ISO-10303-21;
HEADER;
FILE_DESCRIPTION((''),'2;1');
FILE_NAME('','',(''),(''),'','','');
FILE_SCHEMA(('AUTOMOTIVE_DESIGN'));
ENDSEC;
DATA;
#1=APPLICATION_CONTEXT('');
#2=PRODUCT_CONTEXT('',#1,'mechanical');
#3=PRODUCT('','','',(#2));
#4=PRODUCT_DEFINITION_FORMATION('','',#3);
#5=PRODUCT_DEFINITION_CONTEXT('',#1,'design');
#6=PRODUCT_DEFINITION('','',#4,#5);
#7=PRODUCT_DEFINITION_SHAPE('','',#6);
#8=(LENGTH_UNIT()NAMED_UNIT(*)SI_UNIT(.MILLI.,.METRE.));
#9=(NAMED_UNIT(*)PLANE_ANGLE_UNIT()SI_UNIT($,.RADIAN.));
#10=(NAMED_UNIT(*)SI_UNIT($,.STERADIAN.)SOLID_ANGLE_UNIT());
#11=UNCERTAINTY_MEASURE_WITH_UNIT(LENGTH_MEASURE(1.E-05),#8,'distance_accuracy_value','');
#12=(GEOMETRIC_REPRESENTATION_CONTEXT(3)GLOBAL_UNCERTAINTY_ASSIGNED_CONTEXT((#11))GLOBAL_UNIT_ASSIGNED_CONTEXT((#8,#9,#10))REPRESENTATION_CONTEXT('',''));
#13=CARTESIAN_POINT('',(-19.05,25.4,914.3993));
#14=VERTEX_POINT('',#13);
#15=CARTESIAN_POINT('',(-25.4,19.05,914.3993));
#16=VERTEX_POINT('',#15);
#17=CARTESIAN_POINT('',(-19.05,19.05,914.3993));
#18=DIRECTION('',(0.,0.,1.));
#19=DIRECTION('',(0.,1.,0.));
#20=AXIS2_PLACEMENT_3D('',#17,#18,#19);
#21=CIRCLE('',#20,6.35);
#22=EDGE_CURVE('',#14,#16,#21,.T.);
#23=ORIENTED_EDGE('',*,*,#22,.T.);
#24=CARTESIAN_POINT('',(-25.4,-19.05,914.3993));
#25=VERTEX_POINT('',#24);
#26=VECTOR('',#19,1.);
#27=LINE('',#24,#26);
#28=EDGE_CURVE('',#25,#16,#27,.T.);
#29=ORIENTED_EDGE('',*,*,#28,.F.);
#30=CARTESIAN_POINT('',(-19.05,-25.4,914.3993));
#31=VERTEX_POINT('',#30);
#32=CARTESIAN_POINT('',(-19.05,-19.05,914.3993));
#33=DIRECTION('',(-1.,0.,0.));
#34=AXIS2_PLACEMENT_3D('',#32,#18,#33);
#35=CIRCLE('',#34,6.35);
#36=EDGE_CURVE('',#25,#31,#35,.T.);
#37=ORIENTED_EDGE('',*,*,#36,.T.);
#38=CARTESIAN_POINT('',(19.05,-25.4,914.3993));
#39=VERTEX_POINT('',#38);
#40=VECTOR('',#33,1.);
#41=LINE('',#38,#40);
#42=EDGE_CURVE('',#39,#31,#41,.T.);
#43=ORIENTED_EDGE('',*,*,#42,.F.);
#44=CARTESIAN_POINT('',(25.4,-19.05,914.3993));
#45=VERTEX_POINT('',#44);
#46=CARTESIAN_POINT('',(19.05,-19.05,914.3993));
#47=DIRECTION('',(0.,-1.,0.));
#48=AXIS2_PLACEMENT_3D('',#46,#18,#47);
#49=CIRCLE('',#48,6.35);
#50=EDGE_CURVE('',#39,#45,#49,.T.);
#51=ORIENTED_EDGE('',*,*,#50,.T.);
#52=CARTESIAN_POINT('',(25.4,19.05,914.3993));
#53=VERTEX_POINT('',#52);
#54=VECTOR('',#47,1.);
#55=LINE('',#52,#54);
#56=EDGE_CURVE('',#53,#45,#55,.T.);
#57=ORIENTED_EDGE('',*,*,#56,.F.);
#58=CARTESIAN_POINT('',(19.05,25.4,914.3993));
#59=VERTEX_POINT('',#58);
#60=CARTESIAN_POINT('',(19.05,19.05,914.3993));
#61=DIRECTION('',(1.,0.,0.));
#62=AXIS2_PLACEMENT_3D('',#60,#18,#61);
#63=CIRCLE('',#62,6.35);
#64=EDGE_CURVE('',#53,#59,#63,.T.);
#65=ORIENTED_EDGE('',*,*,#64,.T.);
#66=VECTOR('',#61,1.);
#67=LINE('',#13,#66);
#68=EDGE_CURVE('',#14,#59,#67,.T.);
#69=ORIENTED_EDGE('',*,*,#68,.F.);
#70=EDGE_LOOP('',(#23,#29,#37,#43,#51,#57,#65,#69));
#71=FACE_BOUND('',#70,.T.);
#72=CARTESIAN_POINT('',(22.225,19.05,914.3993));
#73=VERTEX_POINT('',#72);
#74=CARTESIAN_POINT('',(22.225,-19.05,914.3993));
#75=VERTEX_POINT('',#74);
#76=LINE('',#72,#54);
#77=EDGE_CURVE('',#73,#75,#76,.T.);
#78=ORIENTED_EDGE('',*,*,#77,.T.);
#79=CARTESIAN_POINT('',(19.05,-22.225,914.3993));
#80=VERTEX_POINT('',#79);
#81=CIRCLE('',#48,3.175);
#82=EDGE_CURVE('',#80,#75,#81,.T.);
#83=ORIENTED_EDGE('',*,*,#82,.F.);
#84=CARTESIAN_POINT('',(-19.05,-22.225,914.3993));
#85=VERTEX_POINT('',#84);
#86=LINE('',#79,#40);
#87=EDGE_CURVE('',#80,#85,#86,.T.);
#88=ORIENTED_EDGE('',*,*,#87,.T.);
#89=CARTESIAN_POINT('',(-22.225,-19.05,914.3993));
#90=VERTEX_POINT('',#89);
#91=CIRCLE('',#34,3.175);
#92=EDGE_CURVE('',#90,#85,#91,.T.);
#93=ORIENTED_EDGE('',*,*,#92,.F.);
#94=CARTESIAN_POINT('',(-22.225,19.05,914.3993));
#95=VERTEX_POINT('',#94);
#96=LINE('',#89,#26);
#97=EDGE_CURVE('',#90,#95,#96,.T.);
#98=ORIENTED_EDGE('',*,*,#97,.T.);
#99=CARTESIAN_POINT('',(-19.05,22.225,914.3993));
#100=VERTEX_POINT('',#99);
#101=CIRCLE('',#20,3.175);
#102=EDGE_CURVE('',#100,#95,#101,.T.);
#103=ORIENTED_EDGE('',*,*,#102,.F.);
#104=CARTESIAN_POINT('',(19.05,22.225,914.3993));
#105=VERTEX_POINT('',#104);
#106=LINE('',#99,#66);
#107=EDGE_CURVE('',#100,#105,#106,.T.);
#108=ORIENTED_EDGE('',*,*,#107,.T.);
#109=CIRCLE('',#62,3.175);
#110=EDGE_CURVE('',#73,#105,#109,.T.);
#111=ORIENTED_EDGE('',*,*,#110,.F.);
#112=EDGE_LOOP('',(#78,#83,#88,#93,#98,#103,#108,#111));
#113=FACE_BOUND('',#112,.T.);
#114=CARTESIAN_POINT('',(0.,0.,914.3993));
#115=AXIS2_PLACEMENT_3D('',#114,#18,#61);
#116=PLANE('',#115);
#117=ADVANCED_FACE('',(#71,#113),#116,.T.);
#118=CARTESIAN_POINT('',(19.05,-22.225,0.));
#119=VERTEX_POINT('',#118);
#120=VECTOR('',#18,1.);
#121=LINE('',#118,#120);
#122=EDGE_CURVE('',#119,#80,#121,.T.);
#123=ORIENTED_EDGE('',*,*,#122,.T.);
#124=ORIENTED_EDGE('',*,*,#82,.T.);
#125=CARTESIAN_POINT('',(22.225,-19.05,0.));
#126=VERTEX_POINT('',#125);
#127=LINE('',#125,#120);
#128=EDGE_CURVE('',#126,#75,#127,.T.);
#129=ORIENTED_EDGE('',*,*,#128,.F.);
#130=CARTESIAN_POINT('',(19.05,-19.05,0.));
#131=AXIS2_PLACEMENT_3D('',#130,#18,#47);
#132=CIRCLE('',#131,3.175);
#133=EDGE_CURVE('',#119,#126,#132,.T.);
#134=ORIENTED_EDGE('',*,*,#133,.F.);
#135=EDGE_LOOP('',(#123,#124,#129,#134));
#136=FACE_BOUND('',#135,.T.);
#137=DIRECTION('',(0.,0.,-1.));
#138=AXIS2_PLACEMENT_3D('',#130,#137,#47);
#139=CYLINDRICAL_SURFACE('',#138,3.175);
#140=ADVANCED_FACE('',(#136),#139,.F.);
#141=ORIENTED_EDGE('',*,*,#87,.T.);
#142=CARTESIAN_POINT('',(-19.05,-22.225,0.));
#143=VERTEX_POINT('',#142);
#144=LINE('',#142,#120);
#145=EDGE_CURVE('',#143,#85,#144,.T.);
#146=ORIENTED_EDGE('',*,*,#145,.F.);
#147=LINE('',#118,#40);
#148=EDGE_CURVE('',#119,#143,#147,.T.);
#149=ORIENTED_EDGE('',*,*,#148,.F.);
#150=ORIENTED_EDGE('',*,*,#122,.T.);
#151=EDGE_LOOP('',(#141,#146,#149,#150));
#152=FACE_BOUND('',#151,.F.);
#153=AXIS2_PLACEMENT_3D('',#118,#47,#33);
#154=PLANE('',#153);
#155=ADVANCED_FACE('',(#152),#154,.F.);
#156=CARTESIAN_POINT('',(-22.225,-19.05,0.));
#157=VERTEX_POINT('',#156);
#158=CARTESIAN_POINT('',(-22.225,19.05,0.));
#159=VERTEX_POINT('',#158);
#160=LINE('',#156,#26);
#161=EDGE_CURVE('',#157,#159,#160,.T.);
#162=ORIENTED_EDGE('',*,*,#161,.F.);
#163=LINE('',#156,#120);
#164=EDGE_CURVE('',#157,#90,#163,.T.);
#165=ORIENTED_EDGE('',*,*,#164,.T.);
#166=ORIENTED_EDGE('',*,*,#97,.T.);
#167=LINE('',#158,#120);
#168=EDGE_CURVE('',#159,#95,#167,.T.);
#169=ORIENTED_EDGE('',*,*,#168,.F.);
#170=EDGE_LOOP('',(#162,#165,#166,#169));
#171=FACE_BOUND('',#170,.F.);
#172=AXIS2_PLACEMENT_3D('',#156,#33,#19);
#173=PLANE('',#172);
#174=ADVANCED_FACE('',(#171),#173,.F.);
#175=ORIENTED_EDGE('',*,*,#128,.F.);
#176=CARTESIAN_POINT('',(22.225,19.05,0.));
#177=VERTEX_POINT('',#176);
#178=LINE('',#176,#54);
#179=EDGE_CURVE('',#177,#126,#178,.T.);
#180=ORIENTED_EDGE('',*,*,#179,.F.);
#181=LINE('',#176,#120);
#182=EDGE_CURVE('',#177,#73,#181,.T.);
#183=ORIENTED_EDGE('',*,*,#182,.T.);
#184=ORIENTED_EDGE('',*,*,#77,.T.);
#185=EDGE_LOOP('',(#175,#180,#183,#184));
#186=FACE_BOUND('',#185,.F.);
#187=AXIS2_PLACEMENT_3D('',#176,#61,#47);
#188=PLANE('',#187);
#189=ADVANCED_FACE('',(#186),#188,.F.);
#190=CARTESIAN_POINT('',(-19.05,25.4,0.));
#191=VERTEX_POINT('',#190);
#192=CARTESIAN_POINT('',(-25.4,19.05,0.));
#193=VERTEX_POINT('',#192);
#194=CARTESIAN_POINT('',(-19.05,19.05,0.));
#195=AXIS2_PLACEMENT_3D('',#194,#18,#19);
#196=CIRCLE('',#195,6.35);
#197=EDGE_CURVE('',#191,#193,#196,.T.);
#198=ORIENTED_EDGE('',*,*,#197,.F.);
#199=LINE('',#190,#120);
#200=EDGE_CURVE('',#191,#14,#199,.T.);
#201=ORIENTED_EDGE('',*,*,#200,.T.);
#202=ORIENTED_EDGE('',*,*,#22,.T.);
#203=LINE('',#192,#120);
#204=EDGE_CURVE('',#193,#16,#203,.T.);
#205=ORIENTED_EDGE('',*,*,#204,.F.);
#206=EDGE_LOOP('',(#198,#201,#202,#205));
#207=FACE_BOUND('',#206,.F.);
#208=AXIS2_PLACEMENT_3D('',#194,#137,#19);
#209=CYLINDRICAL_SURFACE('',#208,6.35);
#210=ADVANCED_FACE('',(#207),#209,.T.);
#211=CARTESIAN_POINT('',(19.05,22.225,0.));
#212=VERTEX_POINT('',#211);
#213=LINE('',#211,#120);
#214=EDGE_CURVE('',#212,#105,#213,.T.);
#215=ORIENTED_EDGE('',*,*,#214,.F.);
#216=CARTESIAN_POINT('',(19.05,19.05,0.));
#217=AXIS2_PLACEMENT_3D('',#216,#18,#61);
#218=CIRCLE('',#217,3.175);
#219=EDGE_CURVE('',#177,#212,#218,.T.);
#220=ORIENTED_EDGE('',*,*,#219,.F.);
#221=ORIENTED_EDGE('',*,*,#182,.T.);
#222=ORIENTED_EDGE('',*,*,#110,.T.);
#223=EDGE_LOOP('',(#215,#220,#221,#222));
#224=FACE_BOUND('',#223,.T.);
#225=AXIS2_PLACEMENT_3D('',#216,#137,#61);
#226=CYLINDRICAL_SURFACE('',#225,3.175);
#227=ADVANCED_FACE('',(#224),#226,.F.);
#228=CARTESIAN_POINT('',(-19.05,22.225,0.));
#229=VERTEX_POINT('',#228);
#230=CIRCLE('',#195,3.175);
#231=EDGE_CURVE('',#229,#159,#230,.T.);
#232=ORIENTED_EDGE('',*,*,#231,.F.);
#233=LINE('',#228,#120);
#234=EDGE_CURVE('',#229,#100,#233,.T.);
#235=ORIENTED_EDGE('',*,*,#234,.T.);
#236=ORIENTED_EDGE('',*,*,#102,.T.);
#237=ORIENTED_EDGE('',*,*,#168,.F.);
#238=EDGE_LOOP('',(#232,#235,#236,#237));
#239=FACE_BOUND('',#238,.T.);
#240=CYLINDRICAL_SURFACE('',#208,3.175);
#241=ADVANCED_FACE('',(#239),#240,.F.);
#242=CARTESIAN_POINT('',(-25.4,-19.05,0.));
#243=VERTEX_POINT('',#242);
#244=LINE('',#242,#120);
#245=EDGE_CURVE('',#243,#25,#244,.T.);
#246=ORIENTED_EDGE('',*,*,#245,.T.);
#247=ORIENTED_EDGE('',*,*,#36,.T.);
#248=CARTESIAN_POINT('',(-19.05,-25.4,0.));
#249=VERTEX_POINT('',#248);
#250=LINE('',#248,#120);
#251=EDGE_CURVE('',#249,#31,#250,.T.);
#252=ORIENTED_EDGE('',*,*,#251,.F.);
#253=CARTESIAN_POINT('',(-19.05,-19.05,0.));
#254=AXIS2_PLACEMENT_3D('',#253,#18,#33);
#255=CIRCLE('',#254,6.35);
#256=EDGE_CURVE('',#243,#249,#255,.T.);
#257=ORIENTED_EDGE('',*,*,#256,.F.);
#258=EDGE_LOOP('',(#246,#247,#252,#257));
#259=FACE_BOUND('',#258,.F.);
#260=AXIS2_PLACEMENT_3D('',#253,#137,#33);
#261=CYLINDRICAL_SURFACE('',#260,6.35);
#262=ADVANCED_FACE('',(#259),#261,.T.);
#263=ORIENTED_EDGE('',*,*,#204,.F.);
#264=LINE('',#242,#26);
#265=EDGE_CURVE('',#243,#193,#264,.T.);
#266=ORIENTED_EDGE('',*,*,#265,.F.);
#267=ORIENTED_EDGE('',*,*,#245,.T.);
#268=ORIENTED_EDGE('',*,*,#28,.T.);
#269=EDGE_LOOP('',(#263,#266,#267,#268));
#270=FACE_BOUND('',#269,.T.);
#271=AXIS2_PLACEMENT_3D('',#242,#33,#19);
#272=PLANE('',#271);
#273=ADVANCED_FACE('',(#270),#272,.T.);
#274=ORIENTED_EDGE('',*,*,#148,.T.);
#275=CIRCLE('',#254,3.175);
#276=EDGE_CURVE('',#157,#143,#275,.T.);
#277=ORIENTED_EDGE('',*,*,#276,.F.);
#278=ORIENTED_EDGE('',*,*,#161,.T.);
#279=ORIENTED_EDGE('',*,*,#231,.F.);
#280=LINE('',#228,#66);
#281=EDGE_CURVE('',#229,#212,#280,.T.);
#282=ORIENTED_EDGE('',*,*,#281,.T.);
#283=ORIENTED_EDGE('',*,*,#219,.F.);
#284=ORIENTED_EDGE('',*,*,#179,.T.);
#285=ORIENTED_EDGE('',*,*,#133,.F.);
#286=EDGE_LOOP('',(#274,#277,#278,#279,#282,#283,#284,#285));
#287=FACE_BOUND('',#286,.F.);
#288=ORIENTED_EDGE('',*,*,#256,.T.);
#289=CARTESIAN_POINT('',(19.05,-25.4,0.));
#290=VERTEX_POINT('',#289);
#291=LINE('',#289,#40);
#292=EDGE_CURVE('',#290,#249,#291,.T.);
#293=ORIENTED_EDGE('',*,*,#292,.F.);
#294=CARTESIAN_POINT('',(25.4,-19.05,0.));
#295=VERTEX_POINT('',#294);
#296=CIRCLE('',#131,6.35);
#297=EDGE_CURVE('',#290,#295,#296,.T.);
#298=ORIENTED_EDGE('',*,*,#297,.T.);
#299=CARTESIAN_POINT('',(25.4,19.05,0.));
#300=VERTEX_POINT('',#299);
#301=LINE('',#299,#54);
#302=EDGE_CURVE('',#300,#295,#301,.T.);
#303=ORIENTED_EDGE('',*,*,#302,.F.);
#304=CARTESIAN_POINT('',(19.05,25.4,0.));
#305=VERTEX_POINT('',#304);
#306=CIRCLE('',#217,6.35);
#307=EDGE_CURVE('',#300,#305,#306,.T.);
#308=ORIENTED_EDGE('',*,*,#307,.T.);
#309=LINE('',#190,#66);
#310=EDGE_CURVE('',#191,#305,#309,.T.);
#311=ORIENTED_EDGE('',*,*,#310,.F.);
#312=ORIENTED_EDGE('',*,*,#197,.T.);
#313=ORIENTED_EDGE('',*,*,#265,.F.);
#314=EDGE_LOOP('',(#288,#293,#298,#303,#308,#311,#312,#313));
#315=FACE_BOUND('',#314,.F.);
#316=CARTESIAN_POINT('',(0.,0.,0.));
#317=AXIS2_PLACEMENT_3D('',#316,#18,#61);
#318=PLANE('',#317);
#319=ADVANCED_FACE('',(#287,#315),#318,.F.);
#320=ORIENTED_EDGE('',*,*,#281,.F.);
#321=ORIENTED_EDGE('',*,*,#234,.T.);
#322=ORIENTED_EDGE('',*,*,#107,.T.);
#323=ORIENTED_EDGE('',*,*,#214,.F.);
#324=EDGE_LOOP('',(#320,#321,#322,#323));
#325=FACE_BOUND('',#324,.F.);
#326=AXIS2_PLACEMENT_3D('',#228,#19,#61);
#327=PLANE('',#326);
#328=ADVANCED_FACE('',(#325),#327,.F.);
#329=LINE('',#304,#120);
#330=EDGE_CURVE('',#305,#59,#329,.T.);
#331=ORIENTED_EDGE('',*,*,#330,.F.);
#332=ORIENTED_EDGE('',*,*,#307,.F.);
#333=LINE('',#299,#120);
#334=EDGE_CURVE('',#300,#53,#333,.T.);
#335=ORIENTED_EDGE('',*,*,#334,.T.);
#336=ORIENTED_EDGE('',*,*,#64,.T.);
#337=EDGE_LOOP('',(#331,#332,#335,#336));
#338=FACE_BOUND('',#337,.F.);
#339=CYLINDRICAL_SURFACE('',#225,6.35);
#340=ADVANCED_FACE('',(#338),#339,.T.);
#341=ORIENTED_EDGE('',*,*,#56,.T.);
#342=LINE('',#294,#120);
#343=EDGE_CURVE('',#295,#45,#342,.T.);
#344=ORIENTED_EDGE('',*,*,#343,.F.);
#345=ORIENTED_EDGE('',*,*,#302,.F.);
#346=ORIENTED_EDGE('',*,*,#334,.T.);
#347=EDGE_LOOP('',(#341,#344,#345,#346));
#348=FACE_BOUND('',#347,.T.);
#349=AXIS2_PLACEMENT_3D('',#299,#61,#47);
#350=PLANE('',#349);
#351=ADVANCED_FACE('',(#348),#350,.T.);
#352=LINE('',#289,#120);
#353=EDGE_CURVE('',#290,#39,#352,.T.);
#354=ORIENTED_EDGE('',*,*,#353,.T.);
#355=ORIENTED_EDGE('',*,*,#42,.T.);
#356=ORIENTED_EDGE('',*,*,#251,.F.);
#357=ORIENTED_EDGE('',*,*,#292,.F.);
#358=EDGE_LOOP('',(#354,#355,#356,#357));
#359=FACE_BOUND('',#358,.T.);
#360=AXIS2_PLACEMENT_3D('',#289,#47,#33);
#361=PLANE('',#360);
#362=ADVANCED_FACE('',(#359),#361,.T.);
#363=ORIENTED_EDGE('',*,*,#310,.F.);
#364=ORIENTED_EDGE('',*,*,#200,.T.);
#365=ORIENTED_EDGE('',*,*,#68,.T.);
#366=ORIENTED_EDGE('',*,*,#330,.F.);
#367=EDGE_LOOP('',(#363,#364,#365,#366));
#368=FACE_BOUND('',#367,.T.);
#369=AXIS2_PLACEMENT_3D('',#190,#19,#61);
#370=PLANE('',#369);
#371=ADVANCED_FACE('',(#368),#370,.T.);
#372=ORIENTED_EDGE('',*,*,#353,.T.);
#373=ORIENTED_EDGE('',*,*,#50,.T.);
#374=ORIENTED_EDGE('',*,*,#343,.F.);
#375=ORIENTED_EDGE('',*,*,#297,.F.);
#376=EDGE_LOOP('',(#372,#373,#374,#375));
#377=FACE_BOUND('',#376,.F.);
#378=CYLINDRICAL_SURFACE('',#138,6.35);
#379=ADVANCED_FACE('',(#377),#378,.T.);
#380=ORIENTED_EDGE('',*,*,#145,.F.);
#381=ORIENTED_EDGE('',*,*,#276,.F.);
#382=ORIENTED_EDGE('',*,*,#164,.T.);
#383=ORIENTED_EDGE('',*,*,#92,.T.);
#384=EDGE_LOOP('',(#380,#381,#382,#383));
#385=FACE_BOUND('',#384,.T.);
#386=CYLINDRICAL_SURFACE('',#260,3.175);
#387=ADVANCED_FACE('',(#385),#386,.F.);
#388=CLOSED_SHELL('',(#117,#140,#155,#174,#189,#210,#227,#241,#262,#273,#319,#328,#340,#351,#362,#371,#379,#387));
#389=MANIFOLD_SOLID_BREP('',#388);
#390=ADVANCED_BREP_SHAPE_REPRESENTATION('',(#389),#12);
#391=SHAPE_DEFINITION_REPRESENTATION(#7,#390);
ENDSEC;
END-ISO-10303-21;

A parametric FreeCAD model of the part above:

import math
import FreeCAD as App
import Part
import Sketcher

V = App.Vector
Q = App.Units.Quantity

doc = App.newDocument("Part")
body = doc.addObject("PartDesign::Body", "Body")

# Sketch on XY plane
sketch1 = body.newObject("Sketcher::SketchObject", "Sketch")
sketch1.AttachmentSupport = (doc.getObject("XY_Plane"), [""])
sketch1.MapMode = "FlatFace"
sketch1.addGeometry([
    Part.LineSegment(V(-25.4, 19.1, 0), V(-25.4, -19.1, 0)),  # 0
    Part.ArcOfCircle(Part.Circle(V(-19.1, -19.1, 0), V(0, 0, 1), 6.3), math.radians(180), math.radians(270)),  # 1
    Part.LineSegment(V(-19.1, -25.4, 0), V(19.1, -25.4, 0)),  # 2
    Part.ArcOfCircle(Part.Circle(V(19.1, -19.1, 0), V(0, 0, 1), 6.3), math.radians(-90), math.radians(0)),  # 3
    Part.LineSegment(V(25.4, -19.1, 0), V(25.4, 19.1, 0)),  # 4
    Part.ArcOfCircle(Part.Circle(V(19.1, 19.1, 0), V(0, 0, 1), 6.3), math.radians(0), math.radians(90)),  # 5
    Part.LineSegment(V(19.1, 25.4, 0), V(-19.1, 25.4, 0)),  # 6
    Part.ArcOfCircle(Part.Circle(V(-19.1, 19.1, 0), V(0, 0, 1), 6.3), math.radians(90), math.radians(180)),  # 7
    Part.ArcOfCircle(Part.Circle(V(-19.1, 19.1, 0), V(0, 0, 1), 3.2), math.radians(90), math.radians(180)),  # 8
    Part.LineSegment(V(-19.1, 22.2, 0), V(19.1, 22.2, 0)),  # 9
    Part.ArcOfCircle(Part.Circle(V(19.1, 19.1, 0), V(0, 0, 1), 3.2), math.radians(0), math.radians(90)),  # 10
    Part.LineSegment(V(22.2, 19.1, 0), V(22.2, -19.1, 0)),  # 11
    Part.ArcOfCircle(Part.Circle(V(19.1, -19.1, 0), V(0, 0, 1), 3.2), math.radians(-90), math.radians(0)),  # 12
    Part.LineSegment(V(19.1, -22.2, 0), V(-19.1, -22.2, 0)),  # 13
    Part.ArcOfCircle(Part.Circle(V(-19.1, -19.1, 0), V(0, 0, 1), 3.2), math.radians(180), math.radians(270)),  # 14
    Part.LineSegment(V(-22.2, -19.1, 0), V(-22.2, 19.1, 0)),  # 15
], False)
sketch1.addConstraint([
    Sketcher.Constraint("Tangent", 0, 2, 1, 1),
    Sketcher.Constraint("Tangent", 1, 2, 2, 1),
    Sketcher.Constraint("Tangent", 2, 2, 3, 1),
    Sketcher.Constraint("Tangent", 3, 2, 4, 1),
    Sketcher.Constraint("Tangent", 4, 2, 5, 1),
    Sketcher.Constraint("Tangent", 5, 2, 6, 1),
    Sketcher.Constraint("Tangent", 6, 2, 7, 1),
    Sketcher.Constraint("Tangent", 7, 2, 0, 1),
    Sketcher.Constraint("Tangent", 8, 1, 9, 1),
    Sketcher.Constraint("Tangent", 9, 2, 10, 2),
    Sketcher.Constraint("Tangent", 10, 1, 11, 1),
    Sketcher.Constraint("Tangent", 11, 2, 12, 2),
    Sketcher.Constraint("Tangent", 12, 1, 13, 1),
    Sketcher.Constraint("Tangent", 13, 2, 14, 2),
    Sketcher.Constraint("Tangent", 14, 1, 15, 1),
    Sketcher.Constraint("Tangent", 15, 2, 8, 2),
    Sketcher.Constraint("Vertical", 0),
    Sketcher.Constraint("Horizontal", 2),
    Sketcher.Constraint("Vertical", 4),
    Sketcher.Constraint("Horizontal", 6),
    Sketcher.Constraint("Horizontal", 9),
    Sketcher.Constraint("Vertical", 11),
    Sketcher.Constraint("Horizontal", 13),
    Sketcher.Constraint("Vertical", 15),
    Sketcher.Constraint("Coincident", 8, 3, 7, 3),
    Sketcher.Constraint("Coincident", 10, 3, 5, 3),
    Sketcher.Constraint("Coincident", 12, 3, 3, 3),
    Sketcher.Constraint("Equal", 1, 3),
    Sketcher.Constraint("Equal", 3, 5),
    Sketcher.Constraint("Equal", 5, 7),
    Sketcher.Constraint("Equal", 12, 14),
    Sketcher.Constraint("Symmetric", 1, 3, 5, 3, -1, 1),
    Sketcher.Constraint("Equal", 13, 0),
    Sketcher.Constraint("Radius", 1, Q("0.25 in")),
    Sketcher.Constraint("DistanceX", 0, 2, -1, 1, Q("1 in")),
    Sketcher.Constraint("Radius", 8, Q("0.125 in")),
])
pad1 = body.newObject("PartDesign::Pad", "Pad")
pad1.Profile = sketch1
pad1.Length = 914.3993

doc.recompute()
